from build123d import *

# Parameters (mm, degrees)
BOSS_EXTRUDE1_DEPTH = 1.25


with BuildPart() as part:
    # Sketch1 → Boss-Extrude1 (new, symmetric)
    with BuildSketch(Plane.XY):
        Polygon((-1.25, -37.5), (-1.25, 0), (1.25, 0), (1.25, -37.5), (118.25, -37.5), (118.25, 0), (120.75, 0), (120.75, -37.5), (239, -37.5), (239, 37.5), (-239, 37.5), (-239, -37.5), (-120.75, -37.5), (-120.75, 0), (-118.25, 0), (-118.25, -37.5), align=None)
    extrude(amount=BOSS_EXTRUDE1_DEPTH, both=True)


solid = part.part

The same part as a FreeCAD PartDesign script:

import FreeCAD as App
import Part
import Sketcher

V = App.Vector

doc = App.newDocument("Part")
body = doc.addObject("PartDesign::Body", "Body")

sketch1 = doc.addObject("Sketcher::SketchObject", "Sketch")
body.addObject(sketch1)
sketch1.AttachmentSupport = (doc.XY_Plane, [""])
sketch1.MapMode = "FlatFace"
sketch1.addGeometry([
    Part.LineSegment(V(-1.2, -37.5, 0), V(-1.2, 0, 0)),
    Part.LineSegment(V(-1.2, 0, 0), V(1.2, 0, 0)),
    Part.LineSegment(V(1.2, 0, 0), V(1.2, -37.5, 0)),
    Part.LineSegment(V(1.2, -37.5, 0), V(118.2, -37.5, 0)),
    Part.LineSegment(V(118.2, -37.5, 0), V(118.2, 0, 0)),
    Part.LineSegment(V(118.2, 0, 0), V(120.8, 0, 0)),
    Part.LineSegment(V(120.8, 0, 0), V(120.8, -37.5, 0)),
    Part.LineSegment(V(120.8, -37.5, 0), V(239, -37.5, 0)),
    Part.LineSegment(V(239, -37.5, 0), V(239, 37.5, 0)),
    Part.LineSegment(V(239, 37.5, 0), V(-239, 37.5, 0)),
    Part.LineSegment(V(-239, 37.5, 0), V(-239, -37.5, 0)),
    Part.LineSegment(V(-239, -37.5, 0), V(-120.8, -37.5, 0)),
    Part.LineSegment(V(-120.8, -37.5, 0), V(-120.8, 0, 0)),
    Part.LineSegment(V(-120.8, 0, 0), V(-118.2, 0, 0)),
    Part.LineSegment(V(-118.2, 0, 0), V(-118.2, -37.5, 0)),
    Part.LineSegment(V(-118.2, -37.5, 0), V(-1.2, -37.5, 0)),
], False)
sketch1.addConstraint([
    Sketcher.Constraint("Coincident", 0, 2, 1, 1),
    Sketcher.Constraint("Coincident", 1, 2, 2, 1),
    Sketcher.Constraint("Coincident", 2, 2, 3, 1),
    Sketcher.Constraint("Coincident", 3, 2, 4, 1),
    Sketcher.Constraint("Coincident", 4, 2, 5, 1),
    Sketcher.Constraint("Coincident", 5, 2, 6, 1),
    Sketcher.Constraint("Coincident", 6, 2, 7, 1),
    Sketcher.Constraint("Coincident", 7, 2, 8, 1),
    Sketcher.Constraint("Coincident", 8, 2, 9, 1),
    Sketcher.Constraint("Coincident", 9, 2, 10, 1),
    Sketcher.Constraint("Coincident", 10, 2, 11, 1),
    Sketcher.Constraint("Coincident", 11, 2, 12, 1),
    Sketcher.Constraint("Coincident", 12, 2, 13, 1),
    Sketcher.Constraint("Coincident", 13, 2, 14, 1),
    Sketcher.Constraint("Coincident", 14, 2, 15, 1),
    Sketcher.Constraint("Coincident", 15, 2, 0, 1),
    Sketcher.Constraint("Vertical", 0),
    Sketcher.Constraint("Horizontal", 1),
    Sketcher.Constraint("Vertical", 2),
    Sketcher.Constraint("Horizontal", 3),
    Sketcher.Constraint("Vertical", 4),
    Sketcher.Constraint("Horizontal", 5),
    Sketcher.Constraint("Vertical", 6),
    Sketcher.Constraint("Horizontal", 7),
    Sketcher.Constraint("Vertical", 8),
    Sketcher.Constraint("Horizontal", 9),
    Sketcher.Constraint("Vertical", 10),
    Sketcher.Constraint("Horizontal", 11),
    Sketcher.Constraint("Vertical", 12),
    Sketcher.Constraint("Horizontal", 13),
    Sketcher.Constraint("Vertical", 14),
    Sketcher.Constraint("Horizontal", 15),
    Sketcher.Constraint("Symmetric", 0, 2, 1, 2, -1, 1),
    Sketcher.Constraint("Symmetric", 7, 2, 9, 2, -1, 1),
    Sketcher.Constraint("Symmetric", 5, 2, 12, 2, -1, 1),
    Sketcher.Constraint("Symmetric", 4, 2, 13, 2, -2),
    Sketcher.Constraint("Horizontal", 3, 2, 6, 2),
    Sketcher.Constraint("Horizontal", 7, 2, 10, 2),
    Sketcher.Constraint("Horizontal", 11, 2, 14, 2),
    Sketcher.Constraint("Equal", 1, 5),
    Sketcher.Constraint("DistanceX", 3, 1, 3, 2, 117.0),
    Sketcher.Constraint("DistanceX", 9, 2, 9, 1, 478.0),
    Sketcher.Constraint("DistanceY", 8, 1, 8, 2, 75.0),
    Sketcher.Constraint("DistanceX", 1, 1, 1, 2, 2.5),
])
pad1 = doc.addObject("PartDesign::Pad", "Pad")
body.addObject(pad1)
pad1.Profile = sketch1
pad1.Length = 2.5
pad1.Midplane = True

doc.recompute()
